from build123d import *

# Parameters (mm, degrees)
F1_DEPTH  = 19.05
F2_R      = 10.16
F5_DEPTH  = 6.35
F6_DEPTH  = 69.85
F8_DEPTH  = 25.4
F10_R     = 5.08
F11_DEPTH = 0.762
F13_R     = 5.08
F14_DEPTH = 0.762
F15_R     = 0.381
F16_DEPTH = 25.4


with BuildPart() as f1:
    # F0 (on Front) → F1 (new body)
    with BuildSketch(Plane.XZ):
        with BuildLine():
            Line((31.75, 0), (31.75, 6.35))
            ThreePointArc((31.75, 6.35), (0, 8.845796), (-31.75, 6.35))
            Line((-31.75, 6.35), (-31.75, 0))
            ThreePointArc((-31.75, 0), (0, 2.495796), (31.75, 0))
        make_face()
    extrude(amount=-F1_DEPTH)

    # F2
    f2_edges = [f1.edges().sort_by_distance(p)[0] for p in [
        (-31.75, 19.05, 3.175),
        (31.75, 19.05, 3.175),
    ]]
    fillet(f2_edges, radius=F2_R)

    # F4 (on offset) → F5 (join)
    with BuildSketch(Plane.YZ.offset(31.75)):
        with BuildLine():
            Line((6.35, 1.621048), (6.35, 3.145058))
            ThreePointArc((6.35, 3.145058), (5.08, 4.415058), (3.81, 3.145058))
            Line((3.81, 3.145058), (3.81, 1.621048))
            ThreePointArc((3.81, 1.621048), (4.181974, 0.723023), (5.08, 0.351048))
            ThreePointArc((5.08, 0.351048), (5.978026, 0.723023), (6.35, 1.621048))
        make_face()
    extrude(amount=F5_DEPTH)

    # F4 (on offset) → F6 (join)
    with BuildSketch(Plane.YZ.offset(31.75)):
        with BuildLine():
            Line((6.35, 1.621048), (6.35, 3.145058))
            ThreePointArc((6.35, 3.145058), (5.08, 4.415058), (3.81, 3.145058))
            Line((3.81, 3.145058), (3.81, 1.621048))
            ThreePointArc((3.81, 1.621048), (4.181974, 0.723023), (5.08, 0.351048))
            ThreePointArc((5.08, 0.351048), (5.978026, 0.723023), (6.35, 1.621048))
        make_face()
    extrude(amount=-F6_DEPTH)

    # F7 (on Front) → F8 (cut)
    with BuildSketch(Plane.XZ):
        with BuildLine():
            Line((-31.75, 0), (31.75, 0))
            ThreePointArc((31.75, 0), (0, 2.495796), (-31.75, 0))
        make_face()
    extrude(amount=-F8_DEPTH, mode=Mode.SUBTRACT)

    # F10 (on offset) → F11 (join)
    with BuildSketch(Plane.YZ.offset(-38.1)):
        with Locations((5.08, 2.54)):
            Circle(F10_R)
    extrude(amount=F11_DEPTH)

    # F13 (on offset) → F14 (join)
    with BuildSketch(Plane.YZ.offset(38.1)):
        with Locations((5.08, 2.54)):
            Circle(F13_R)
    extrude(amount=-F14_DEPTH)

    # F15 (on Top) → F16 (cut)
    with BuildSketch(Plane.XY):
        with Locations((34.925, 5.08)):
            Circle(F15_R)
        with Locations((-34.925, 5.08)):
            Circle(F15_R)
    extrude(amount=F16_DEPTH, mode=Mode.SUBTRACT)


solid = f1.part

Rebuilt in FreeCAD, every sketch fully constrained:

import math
import FreeCAD as App
import Part
import Sketcher

V = App.Vector
Q = App.Units.Quantity


def edges_at(feature, points):
    """Names of the edges that pass closest to the given points."""
    edges = feature.Shape.Edges
    near = lambda p: min(range(len(edges)), key=lambda i: edges[i].distToShape(Part.Vertex(*p))[0])
    return sorted({f"Edge{near(p) + 1}" for p in points})

doc = App.newDocument("Part")
body = doc.addObject("PartDesign::Body", "Body")

sketch1 = doc.addObject("Sketcher::SketchObject", "Sketch")
body.addObject(sketch1)
sketch1.AttachmentSupport = (doc.XZ_Plane, [""])
sketch1.MapMode = "FlatFace"
sketch1.addGeometry([
    Part.LineSegment(V(32, 0, 0), V(32, 6, 0)),
    Part.ArcOfCircle(Part.Circle(V(0, -194, 0), V(0, 0, 1), 203), math.radians(81.01), math.radians(98.99)),
    Part.LineSegment(V(-32, 6, 0), V(-32, 0, 0)),
    Part.ArcOfCircle(Part.Circle(V(0, -201, 0), V(0, 0, 1), 203), math.radians(81.01), math.radians(98.99)),
], False)
sketch1.addConstraint([
    Sketcher.Constraint("Coincident", 0, 2, 1, 1),
    Sketcher.Constraint("Coincident", 1, 2, 2, 1),
    Sketcher.Constraint("Coincident", 2, 2, 3, 2),
    Sketcher.Constraint("Coincident", 3, 1, 0, 1),
    Sketcher.Constraint("Vertical", 0),
    Sketcher.Constraint("Vertical", 2),
    Sketcher.Constraint("Equal", 1, 3),
    Sketcher.Constraint("Symmetric", 2, 2, 3, 1, -1, 1),
    Sketcher.Constraint("PointOnObject", 1, 3, -2),
    Sketcher.Constraint("PointOnObject", 3, 3, -2),
    Sketcher.Constraint("Radius", 1, Q("8 in")),
    Sketcher.Constraint("DistanceY", 0, 1, 0, 2, Q("0.25 in")),
    Sketcher.Constraint("DistanceX", 1, 2, 0, 2, Q("2.5 in")),
])
pad1 = doc.addObject("PartDesign::Pad", "Pad")
body.addObject(pad1)
pad1.Profile = sketch1
pad1.Length = Q("0.75 in")
pad1.Reversed = True
doc.recompute()

fillet = doc.addObject("PartDesign::Fillet", "Fillet")
body.addObject(fillet)
fillet.Base = (pad1, edges_at(pad1, [(-31.75, 19.05, 3.175), (31.75, 19.05, 3.175)]))
fillet.Radius = Q("0.4 in")

sketch2 = doc.addObject("Sketcher::SketchObject", "Sketch001")
body.addObject(sketch2)
sketch2.AttachmentSupport = (doc.YZ_Plane, [""])
sketch2.MapMode = "FlatFace"
sketch2.AttachmentOffset = App.Placement(V(0, 0, 1.25 * 25.4), App.Rotation())
sketch2.addGeometry([
    Part.LineSegment(V(6.3, 1.6, 0), V(6.3, 3.1, 0)),
    Part.ArcOfCircle(Part.Circle(V(5.1, 3.1, 0), V(0, 0, 1), 1.3), math.radians(0), math.radians(180)),
    Part.LineSegment(V(3.8, 3.1, 0), V(3.8, 1.6, 0)),
    Part.ArcOfCircle(Part.Circle(V(5.1, 1.6, 0), V(0, 0, 1), 1.3), math.radians(-180), math.radians(-90)),
    Part.ArcOfCircle(Part.Circle(V(5.1, 1.6, 0), V(0, 0, 1), 1.3), math.radians(-90), math.radians(0)),
], False)
sketch2.addConstraint([
    Sketcher.Constraint("Tangent", 0, 2, 1, 1),
    Sketcher.Constraint("Tangent", 1, 2, 2, 1),
    Sketcher.Constraint("Tangent", 2, 2, 3, 1),
    Sketcher.Constraint("Tangent", 3, 2, 4, 1),
    Sketcher.Constraint("Tangent", 4, 2, 0, 1),
    Sketcher.Constraint("Vertical", 0),
    Sketcher.Constraint("Vertical", 2),
    Sketcher.Constraint("Equal", 1, 3),
    Sketcher.Constraint("Vertical", 4, 3, 3, 2),
    Sketcher.Constraint("Radius", 1, Q("0.05 in")),
    Sketcher.Constraint("DistanceX", -1, 1, 1, 3, Q("0.2 in")),
    Sketcher.Constraint("DistanceY", 0, 1, 0, 2, Q("1.52401 mm")),
    Sketcher.Constraint("DistanceY", -1, 1, 1, 3, Q("3.145058 mm")),
])
pad2 = doc.addObject("PartDesign::Pad", "Pad001")
body.addObject(pad2)
pad2.Profile = sketch2
pad2.Length = Q("0.25 in")

sketch3 = doc.addObject("Sketcher::SketchObject", "Sketch002")
body.addObject(sketch3)
sketch3.AttachmentSupport = (doc.YZ_Plane, [""])
sketch3.MapMode = "FlatFace"
sketch3.AttachmentOffset = App.Placement(V(0, 0, 1.25 * 25.4), App.Rotation())
sketch3.addGeometry([
    Part.LineSegment(V(6.3, 1.6, 0), V(6.3, 3.1, 0)),
    Part.ArcOfCircle(Part.Circle(V(5.1, 3.1, 0), V(0, 0, 1), 1.3), math.radians(0), math.radians(180)),
    Part.LineSegment(V(3.8, 3.1, 0), V(3.8, 1.6, 0)),
    Part.ArcOfCircle(Part.Circle(V(5.1, 1.6, 0), V(0, 0, 1), 1.3), math.radians(-180), math.radians(-90)),
    Part.ArcOfCircle(Part.Circle(V(5.1, 1.6, 0), V(0, 0, 1), 1.3), math.radians(-90), math.radians(0)),
], False)
sketch3.addConstraint([
    Sketcher.Constraint("Tangent", 0, 2, 1, 1),
    Sketcher.Constraint("Tangent", 1, 2, 2, 1),
    Sketcher.Constraint("Tangent", 2, 2, 3, 1),
    Sketcher.Constraint("Tangent", 3, 2, 4, 1),
    Sketcher.Constraint("Tangent", 4, 2, 0, 1),
    Sketcher.Constraint("Vertical", 0),
    Sketcher.Constraint("Vertical", 2),
    Sketcher.Constraint("Equal", 1, 3),
    Sketcher.Constraint("Vertical", 4, 3, 3, 2),
    Sketcher.Constraint("Radius", 1, Q("0.05 in")),
    Sketcher.Constraint("DistanceX", -1, 1, 1, 3, Q("0.2 in")),
    Sketcher.Constraint("DistanceY", 0, 1, 0, 2, Q("1.52401 mm")),
    Sketcher.Constraint("DistanceY", -1, 1, 1, 3, Q("3.145058 mm")),
])
pad3 = doc.addObject("PartDesign::Pad", "Pad002")
body.addObject(pad3)
pad3.Profile = sketch3
pad3.Length = Q("2.75 in")
pad3.Reversed = True

sketch4 = doc.addObject("Sketcher::SketchObject", "Sketch003")
body.addObject(sketch4)
sketch4.AttachmentSupport = (doc.XZ_Plane, [""])
sketch4.MapMode = "FlatFace"
sketch4.addGeometry([
    Part.LineSegment(V(-32, 0, 0), V(32, 0, 0)),
    Part.ArcOfCircle(Part.Circle(V(0, -201, 0), V(0, 0, 1), 203), math.radians(81.01), math.radians(98.99)),
], False)
sketch4.addConstraint([
    Sketcher.Constraint("Coincident", 0, 1, 1, 2),
    Sketcher.Constraint("Coincident", 1, 1, 0, 2),
    Sketcher.Constraint("Horizontal", 0),
    Sketcher.Constraint("Symmetric", 0, 1, 1, 1, -1, 1),
    Sketcher.Constraint("Radius", 1, Q("8 in")),
    Sketcher.Constraint("DistanceX", 0, 1, 0, 2, Q("2.5 in")),
])
pocket1 = doc.addObject("PartDesign::Pocket", "Pocket")
body.addObject(pocket1)
pocket1.Profile = sketch4
pocket1.Length = Q("1 in")

sketch5 = doc.addObject("Sketcher::SketchObject", "Sketch004")
body.addObject(sketch5)
sketch5.AttachmentSupport = (doc.YZ_Plane, [""])
sketch5.MapMode = "FlatFace"
sketch5.AttachmentOffset = App.Placement(V(0, 0, -1.5 * 25.4), App.Rotation())
sketch5.addGeometry(Part.Circle(V(5, 3, 0), V(0, 0, 1), 5), False)
sketch5.addConstraint([
    Sketcher.Constraint("Diameter", 0, Q("0.4 in")),
    Sketcher.Constraint("DistanceX", -1, 1, 0, 3, Q("0.2 in")),
    Sketcher.Constraint("DistanceY", -1, 1, 0, 3, Q("0.1 in")),
])
pad4 = doc.addObject("PartDesign::Pad", "Pad003")
body.addObject(pad4)
pad4.Profile = sketch5
pad4.Length = Q("0.03 in")

sketch6 = doc.addObject("Sketcher::SketchObject", "Sketch005")
body.addObject(sketch6)
sketch6.AttachmentSupport = (doc.YZ_Plane, [""])
sketch6.MapMode = "FlatFace"
sketch6.AttachmentOffset = App.Placement(V(0, 0, 1.5 * 25.4), App.Rotation())
sketch6.addGeometry(Part.Circle(V(5, 3, 0), V(0, 0, 1), 5), False)
sketch6.addConstraint([
    Sketcher.Constraint("Diameter", 0, Q("0.4 in")),
    Sketcher.Constraint("DistanceX", -1, 1, 0, 3, Q("0.2 in")),
    Sketcher.Constraint("DistanceY", -1, 1, 0, 3, Q("0.1 in")),
])
pad5 = doc.addObject("PartDesign::Pad", "Pad004")
body.addObject(pad5)
pad5.Profile = sketch6
pad5.Length = Q("0.03 in")
pad5.Reversed = True

sketch7 = doc.addObject("Sketcher::SketchObject", "Sketch006")
body.addObject(sketch7)
sketch7.AttachmentSupport = (doc.XY_Plane, [""])
sketch7.MapMode = "FlatFace"
sketch7.addGeometry([
    Part.Circle(V(34.92, 5.08, 0), V(0, 0, 1), 0.38),
    Part.Circle(V(-34.92, 5.08, 0), V(0, 0, 1), 0.38),
], False)
sketch7.addConstraint([
    Sketcher.Constraint("Equal", 0, 1),
    Sketcher.Constraint("Symmetric", 0, 3, 1, 3, -2),
    Sketcher.Constraint("Diameter", 0, Q("0.03 in")),
    Sketcher.Constraint("DistanceY", -1, 1, 0, 3, Q("0.2 in")),
    Sketcher.Constraint("DistanceX", 1, 3, 0, 3, Q("2.75 in")),
])
pocket2 = doc.addObject("PartDesign::Pocket", "Pocket001")
body.addObject(pocket2)
pocket2.Profile = sketch7
pocket2.Length = Q("1 in")
pocket2.Reversed = True

doc.recompute()
